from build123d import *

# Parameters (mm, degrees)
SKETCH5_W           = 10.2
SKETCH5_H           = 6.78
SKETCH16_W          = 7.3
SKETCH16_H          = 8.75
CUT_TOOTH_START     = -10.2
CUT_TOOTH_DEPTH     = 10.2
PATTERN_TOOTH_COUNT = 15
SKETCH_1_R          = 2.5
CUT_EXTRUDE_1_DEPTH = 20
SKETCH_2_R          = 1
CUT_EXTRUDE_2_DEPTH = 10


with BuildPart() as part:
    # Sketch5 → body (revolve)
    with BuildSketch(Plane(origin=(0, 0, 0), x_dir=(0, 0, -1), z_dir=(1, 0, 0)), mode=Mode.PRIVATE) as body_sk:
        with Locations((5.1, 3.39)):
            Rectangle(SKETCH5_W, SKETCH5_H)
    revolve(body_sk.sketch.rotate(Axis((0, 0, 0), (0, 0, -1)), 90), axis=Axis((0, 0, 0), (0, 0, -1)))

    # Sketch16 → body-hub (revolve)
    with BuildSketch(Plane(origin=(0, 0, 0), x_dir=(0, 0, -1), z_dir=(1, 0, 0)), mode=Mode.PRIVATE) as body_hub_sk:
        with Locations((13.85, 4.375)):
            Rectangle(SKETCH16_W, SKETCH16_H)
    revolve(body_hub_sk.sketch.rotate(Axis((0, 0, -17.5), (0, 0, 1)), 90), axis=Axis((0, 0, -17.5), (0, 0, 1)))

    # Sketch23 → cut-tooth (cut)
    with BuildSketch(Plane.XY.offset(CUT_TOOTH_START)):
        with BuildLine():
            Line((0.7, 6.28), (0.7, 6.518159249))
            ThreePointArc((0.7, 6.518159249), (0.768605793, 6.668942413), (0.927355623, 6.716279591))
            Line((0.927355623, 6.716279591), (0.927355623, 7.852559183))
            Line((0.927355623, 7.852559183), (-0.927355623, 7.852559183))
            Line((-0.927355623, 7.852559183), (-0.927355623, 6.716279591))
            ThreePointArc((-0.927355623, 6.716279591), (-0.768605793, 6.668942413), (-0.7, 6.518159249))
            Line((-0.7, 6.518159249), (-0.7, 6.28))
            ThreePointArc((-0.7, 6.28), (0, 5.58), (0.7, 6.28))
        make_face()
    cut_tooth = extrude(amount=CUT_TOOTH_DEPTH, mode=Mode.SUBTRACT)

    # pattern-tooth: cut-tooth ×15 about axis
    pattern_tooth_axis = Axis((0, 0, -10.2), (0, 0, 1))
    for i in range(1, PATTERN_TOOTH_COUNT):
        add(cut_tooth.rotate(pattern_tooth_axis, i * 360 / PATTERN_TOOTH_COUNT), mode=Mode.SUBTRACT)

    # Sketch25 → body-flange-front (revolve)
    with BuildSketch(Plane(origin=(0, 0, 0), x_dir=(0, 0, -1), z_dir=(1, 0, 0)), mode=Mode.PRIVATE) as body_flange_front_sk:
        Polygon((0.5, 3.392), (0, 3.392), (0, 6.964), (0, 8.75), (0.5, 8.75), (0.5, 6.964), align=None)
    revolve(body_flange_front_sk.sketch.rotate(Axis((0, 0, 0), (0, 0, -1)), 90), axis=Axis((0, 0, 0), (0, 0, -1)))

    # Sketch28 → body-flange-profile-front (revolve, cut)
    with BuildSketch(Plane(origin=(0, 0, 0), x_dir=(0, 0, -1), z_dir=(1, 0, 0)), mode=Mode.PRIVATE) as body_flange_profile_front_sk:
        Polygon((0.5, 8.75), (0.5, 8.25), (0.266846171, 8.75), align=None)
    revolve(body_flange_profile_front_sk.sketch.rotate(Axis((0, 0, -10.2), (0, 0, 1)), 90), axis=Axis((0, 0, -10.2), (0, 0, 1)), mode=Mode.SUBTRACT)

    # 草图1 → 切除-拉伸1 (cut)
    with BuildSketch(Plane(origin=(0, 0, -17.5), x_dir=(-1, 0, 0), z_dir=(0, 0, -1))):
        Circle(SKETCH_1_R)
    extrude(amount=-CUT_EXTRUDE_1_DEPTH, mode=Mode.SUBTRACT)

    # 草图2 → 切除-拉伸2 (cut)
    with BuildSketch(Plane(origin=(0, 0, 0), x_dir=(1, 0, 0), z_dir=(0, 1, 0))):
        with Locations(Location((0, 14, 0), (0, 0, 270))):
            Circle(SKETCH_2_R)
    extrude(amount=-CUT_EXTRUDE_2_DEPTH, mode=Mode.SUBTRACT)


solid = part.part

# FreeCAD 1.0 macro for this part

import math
import FreeCAD as App
import Part
import Sketcher
Q = App.Units.Quantity

doc = App.newDocument("Part")
params = doc.addObject("Spreadsheet::Sheet", "Params")
for row, (alias, value) in enumerate([
    ("sketch1_height", "10.2 mm"),
    ("sketch1_width", "6.78 mm"),
    ("revolution_angle", "360 deg"),
    ("sketch2_height", "7.3 mm"),
    ("sketch2_width", "8.75 mm"),
    ("revolution2_angle", "360 deg"),
    ("sketch3_radius", "0.2 mm"),
    ("sketch3_radius2", "0.7 mm"),
    ("pocket1_length", "10.2 mm"),
    ("sketch4_height", "0.5 mm"),
    ("revolution3_angle", "360 deg"),
    ("sketch5_width", "0.5 mm"),
    ("groove_angle", "360 deg"),
    ("sketch6_diameter", "5 mm"),
    ("pocket2_length", "20 mm"),
    ("sketch7_diameter", "2 mm"),
    ("pocket3_length", "10 mm"),
], start=1):
    params.set(f"A{row}", alias)
    params.set(f"B{row}", "=" + value)
    params.setAlias(f"B{row}", alias)

body = doc.addObject("PartDesign::Body", "Body")

# Sketch on YZ plane
sketch1 = body.newObject("Sketcher::SketchObject", "Sketch")
sketch1.AttachmentSupport = (doc.getObject("YZ_Plane"), [""])
sketch1.MapMode = "FlatFace"
sketch1.addGeometry([
    Part.LineSegment(App.Vector(7, 0, 0), App.Vector(0, 0, 0)),
    Part.LineSegment(App.Vector(0, 0, 0), App.Vector(0, -10, 0)),
    Part.LineSegment(App.Vector(0, -10, 0), App.Vector(7, -10, 0)),
    Part.LineSegment(App.Vector(7, -10, 0), App.Vector(7, 0, 0)),
], False)
sketch1.addConstraint([
    Sketcher.Constraint("Coincident", 0, 2, 1, 1),
    Sketcher.Constraint("Coincident", 1, 2, 2, 1),
    Sketcher.Constraint("Coincident", 2, 2, 3, 1),
    Sketcher.Constraint("Coincident", 3, 2, 0, 1),
    Sketcher.Constraint("Horizontal", 0),
    Sketcher.Constraint("Vertical", 1),
    Sketcher.Constraint("Horizontal", 2),
    Sketcher.Constraint("Vertical", 3),
    Sketcher.Constraint("Coincident", 0, 2, -1, 1),
    Sketcher.Constraint("DistanceY", 1, 2, 1, 1, Q("10.2 mm")),
    Sketcher.Constraint("DistanceX", 0, 2, 0, 1, Q("6.78 mm")),
])
sketch1.setExpression("Constraints[9]", "Params.sketch1_height")
sketch1.setExpression("Constraints[10]", "Params.sketch1_width")
revolution = body.newObject("PartDesign::Revolution", "Revolution")
revolution.Profile = sketch1
revolution.ReferenceAxis = (sketch1, ["V_Axis"])
revolution.setExpression("Angle", "Params.revolution_angle")

# Sketch on YZ plane
sketch2 = body.newObject("Sketcher::SketchObject", "Sketch001")
sketch2.AttachmentSupport = (doc.getObject("YZ_Plane"), [""])
sketch2.MapMode = "FlatFace"
sketch2.addGeometry([
    Part.LineSegment(App.Vector(9, -10, 0), App.Vector(0, -10, 0)),
    Part.LineSegment(App.Vector(0, -10, 0), App.Vector(0, -18, 0)),
    Part.LineSegment(App.Vector(0, -18, 0), App.Vector(9, -18, 0)),
    Part.LineSegment(App.Vector(9, -18, 0), App.Vector(9, -10, 0)),
], False)
sketch2.addConstraint([
    Sketcher.Constraint("Coincident", 0, 2, 1, 1),
    Sketcher.Constraint("Coincident", 1, 2, 2, 1),
    Sketcher.Constraint("Coincident", 2, 2, 3, 1),
    Sketcher.Constraint("Coincident", 3, 2, 0, 1),
    Sketcher.Constraint("Horizontal", 0),
    Sketcher.Constraint("Vertical", 1),
    Sketcher.Constraint("Horizontal", 2),
    Sketcher.Constraint("Vertical", 3),
    Sketcher.Constraint("PointOnObject", 0, 2, -2),
    Sketcher.Constraint("DistanceY", 1, 2, 1, 1, Q("7.3 mm")),
    Sketcher.Constraint("DistanceX", 0, 2, 0, 1, Q("8.75 mm")),
    Sketcher.Constraint("DistanceY", 0, 2, -1, 1, Q("10.2 mm")),
])
sketch2.setExpression("Constraints[9]", "Params.sketch2_height")
sketch2.setExpression("Constraints[10]", "Params.sketch2_width")
revolution2 = body.newObject("PartDesign::Revolution", "Revolution001")
revolution2.Profile = sketch2
revolution2.ReferenceAxis = (sketch2, ["V_Axis"])
revolution2.setExpression("Angle", "Params.revolution2_angle")

# Sketch on XY plane
sketch3 = body.newObject("Sketcher::SketchObject", "Sketch002")
sketch3.AttachmentSupport = (doc.getObject("XY_Plane"), [""])
sketch3.MapMode = "FlatFace"
sketch3.AttachmentOffset = App.Placement(App.Vector(0, 0, -10.2), App.Rotation())
sketch3.addGeometry([
    Part.LineSegment(App.Vector(0.7, 6.28, 0), App.Vector(0.7, 6.52, 0)),  # 0
    Part.ArcOfCircle(Part.Circle(App.Vector(0.9, 6.52, 0), App.Vector(0, 0, 1), 0.2), math.radians(82), math.radians(180)),  # 1
    Part.LineSegment(App.Vector(0.93, 6.72, 0), App.Vector(0.93, 7.85, 0)),  # 2
    Part.LineSegment(App.Vector(0.93, 7.85, 0), App.Vector(-0.93, 7.85, 0)),  # 3
    Part.LineSegment(App.Vector(-0.93, 7.85, 0), App.Vector(-0.93, 6.72, 0)),  # 4
    Part.ArcOfCircle(Part.Circle(App.Vector(-0.9, 6.52, 0), App.Vector(0, 0, 1), 0.2), math.radians(0), math.radians(98)),  # 5
    Part.LineSegment(App.Vector(-0.7, 6.52, 0), App.Vector(-0.7, 6.28, 0)),  # 6
    Part.ArcOfCircle(Part.Circle(App.Vector(0, 6.28, 0), App.Vector(0, 0, 1), 0.7), math.radians(180), math.radians(360)),  # 7
], False)
sketch3.addConstraint([
    Sketcher.Constraint("Tangent", 0, 2, 1, 2),
    Sketcher.Constraint("Coincident", 1, 1, 2, 1),
    Sketcher.Constraint("Coincident", 2, 2, 3, 1),
    Sketcher.Constraint("Coincident", 3, 2, 4, 1),
    Sketcher.Constraint("Coincident", 4, 2, 5, 2),
    Sketcher.Constraint("Tangent", 5, 1, 6, 1),
    Sketcher.Constraint("Tangent", 6, 2, 7, 1),
    Sketcher.Constraint("Tangent", 7, 2, 0, 1),
    Sketcher.Constraint("Vertical", 0),
    Sketcher.Constraint("Vertical", 2),
    Sketcher.Constraint("Horizontal", 3),
    Sketcher.Constraint("Vertical", 4),
    Sketcher.Constraint("Vertical", 6),
    Sketcher.Constraint("Equal", 1, 5),
    Sketcher.Constraint("Symmetric", 1, 3, 5, 3, -2),
    Sketcher.Constraint("Horizontal", 1, 1, 4, 2),
    Sketcher.Constraint("Radius", 1, Q("0.2 mm")),
    Sketcher.Constraint("Radius", 7, Q("0.7 mm")),
    Sketcher.Constraint("DistanceY", -1, 1, 7, 3, Q("6.28 mm")),
    Sketcher.Constraint("DistanceX", 3, 2, 3, 1, Q("1.854711 mm")),
    Sketcher.Constraint("DistanceY", 0, 1, 0, 2, Q("0.238159 mm")),
    Sketcher.Constraint("DistanceY", 2, 1, 2, 2, Q("1.13628 mm")),
])
sketch3.setExpression("Constraints[16]", "Params.sketch3_radius")
sketch3.setExpression("Constraints[17]", "Params.sketch3_radius2")
pocket1 = body.newObject("PartDesign::Pocket", "Pocket")
pocket1.Profile = sketch3
pocket1.setExpression("Length", "Params.pocket1_length")
pocket1.Reversed = True
doc.recompute()

polarpattern = body.newObject("PartDesign::PolarPattern", "PolarPattern")
polarpattern.Originals = [pocket1]
polarpattern.Axis = (doc.getObject("Z_Axis"), [""])
polarpattern.Angle = 360
polarpattern.Occurrences = 15
body.Tip = polarpattern

# Sketch on YZ plane
sketch4 = body.newObject("Sketcher::SketchObject", "Sketch003")
sketch4.AttachmentSupport = (doc.getObject("YZ_Plane"), [""])
sketch4.MapMode = "FlatFace"
sketch4.addGeometry([
    Part.LineSegment(App.Vector(3.4, 0, 0), App.Vector(3.4, -0.5, 0)),
    Part.LineSegment(App.Vector(3.4, -0.5, 0), App.Vector(8.8, -0.5, 0)),
    Part.LineSegment(App.Vector(8.8, -0.5, 0), App.Vector(8.8, 0, 0)),
    Part.LineSegment(App.Vector(8.8, 0, 0), App.Vector(3.4, 0, 0)),
], False)
sketch4.addConstraint([
    Sketcher.Constraint("Coincident", 0, 2, 1, 1),
    Sketcher.Constraint("Coincident", 1, 2, 2, 1),
    Sketcher.Constraint("Coincident", 2, 2, 3, 1),
    Sketcher.Constraint("Coincident", 3, 2, 0, 1),
    Sketcher.Constraint("Vertical", 0),
    Sketcher.Constraint("Horizontal", 1),
    Sketcher.Constraint("Vertical", 2),
    Sketcher.Constraint("Horizontal", 3),
    Sketcher.Constraint("PointOnObject", 2, 2, -1),
    Sketcher.Constraint("DistanceY", 0, 2, 0, 1, Q("0.5 mm")),
    Sketcher.Constraint("DistanceX", 1, 1, 1, 2, Q("5.358 mm")),
    Sketcher.Constraint("DistanceX", -1, 1, 1, 2, Q("8.75 mm")),
])
sketch4.setExpression("Constraints[9]", "Params.sketch4_height")
revolution3 = body.newObject("PartDesign::Revolution", "Revolution002")
revolution3.Profile = sketch4
revolution3.ReferenceAxis = (sketch4, ["V_Axis"])
revolution3.setExpression("Angle", "Params.revolution3_angle")

# Sketch on YZ plane
sketch5 = body.newObject("Sketcher::SketchObject", "Sketch004")
sketch5.AttachmentSupport = (doc.getObject("YZ_Plane"), [""])
sketch5.MapMode = "FlatFace"
sketch5.addGeometry([
    Part.LineSegment(App.Vector(8.25, -0.5, 0), App.Vector(8.75, -0.5, 0)),
    Part.LineSegment(App.Vector(8.75, -0.5, 0), App.Vector(8.75, -0.27, 0)),
    Part.LineSegment(App.Vector(8.75, -0.27, 0), App.Vector(8.25, -0.5, 0)),
], False)
sketch5.addConstraint([
    Sketcher.Constraint("Coincident", 0, 2, 1, 1),
    Sketcher.Constraint("Coincident", 1, 2, 2, 1),
    Sketcher.Constraint("Coincident", 2, 2, 0, 1),
    Sketcher.Constraint("Horizontal", 0),
    Sketcher.Constraint("Vertical", 1),
    Sketcher.Constraint("Angle", 2, Q("-155 deg")),
    Sketcher.Constraint("DistanceX", 0, 1, 0, 2, Q("0.5 mm")),
    Sketcher.Constraint("DistanceY", 0, 2, -1, 1, Q("0.5 mm")),
    Sketcher.Constraint("DistanceX", -1, 1, 0, 2, Q("8.75 mm")),
])
sketch5.setExpression("Constraints[6]", "Params.sketch5_width")
groove = body.newObject("PartDesign::Groove", "Groove")
groove.Profile = sketch5
groove.ReferenceAxis = (sketch5, ["V_Axis"])
groove.setExpression("Angle", "Params.groove_angle")

# Sketch on XY plane
sketch6 = body.newObject("Sketcher::SketchObject", "Sketch005")
sketch6.AttachmentSupport = (doc.getObject("XY_Plane"), [""])
sketch6.MapMode = "FlatFace"
sketch6.AttachmentOffset = App.Placement(App.Vector(0, 0, -17.5), App.Rotation())
sketch6.addGeometry(Part.Circle(App.Vector(0, 0, 0), App.Vector(0, 0, 1), 2.5), False)
sketch6.addConstraint([
    Sketcher.Constraint("Coincident", 0, 3, -1, 1),
    Sketcher.Constraint("Diameter", 0, Q("5 mm")),
])
sketch6.setExpression("Constraints[1]", "Params.sketch6_diameter")
pocket2 = body.newObject("PartDesign::Pocket", "Pocket001")
pocket2.Profile = sketch6
pocket2.setExpression("Length", "Params.pocket2_length")
pocket2.Reversed = True

# Sketch on XZ plane
sketch7 = body.newObject("Sketcher::SketchObject", "Sketch006")
sketch7.AttachmentSupport = (doc.getObject("XZ_Plane"), [""])
sketch7.MapMode = "FlatFace"
sketch7.addGeometry(Part.Circle(App.Vector(0, -14, 0), App.Vector(0, 0, 1), 1), False)
sketch7.addConstraint([
    Sketcher.Constraint("PointOnObject", 0, 3, -2),
    Sketcher.Constraint("Diameter", 0, Q("2 mm")),
    Sketcher.Constraint("DistanceY", 0, 3, -1, 1, Q("14 mm")),
])
sketch7.setExpression("Constraints[1]", "Params.sketch7_diameter")
pocket3 = body.newObject("PartDesign::Pocket", "Pocket002")
pocket3.Profile = sketch7
pocket3.setExpression("Length", "Params.pocket3_length")
pocket3.Reversed = True

doc.recompute()
